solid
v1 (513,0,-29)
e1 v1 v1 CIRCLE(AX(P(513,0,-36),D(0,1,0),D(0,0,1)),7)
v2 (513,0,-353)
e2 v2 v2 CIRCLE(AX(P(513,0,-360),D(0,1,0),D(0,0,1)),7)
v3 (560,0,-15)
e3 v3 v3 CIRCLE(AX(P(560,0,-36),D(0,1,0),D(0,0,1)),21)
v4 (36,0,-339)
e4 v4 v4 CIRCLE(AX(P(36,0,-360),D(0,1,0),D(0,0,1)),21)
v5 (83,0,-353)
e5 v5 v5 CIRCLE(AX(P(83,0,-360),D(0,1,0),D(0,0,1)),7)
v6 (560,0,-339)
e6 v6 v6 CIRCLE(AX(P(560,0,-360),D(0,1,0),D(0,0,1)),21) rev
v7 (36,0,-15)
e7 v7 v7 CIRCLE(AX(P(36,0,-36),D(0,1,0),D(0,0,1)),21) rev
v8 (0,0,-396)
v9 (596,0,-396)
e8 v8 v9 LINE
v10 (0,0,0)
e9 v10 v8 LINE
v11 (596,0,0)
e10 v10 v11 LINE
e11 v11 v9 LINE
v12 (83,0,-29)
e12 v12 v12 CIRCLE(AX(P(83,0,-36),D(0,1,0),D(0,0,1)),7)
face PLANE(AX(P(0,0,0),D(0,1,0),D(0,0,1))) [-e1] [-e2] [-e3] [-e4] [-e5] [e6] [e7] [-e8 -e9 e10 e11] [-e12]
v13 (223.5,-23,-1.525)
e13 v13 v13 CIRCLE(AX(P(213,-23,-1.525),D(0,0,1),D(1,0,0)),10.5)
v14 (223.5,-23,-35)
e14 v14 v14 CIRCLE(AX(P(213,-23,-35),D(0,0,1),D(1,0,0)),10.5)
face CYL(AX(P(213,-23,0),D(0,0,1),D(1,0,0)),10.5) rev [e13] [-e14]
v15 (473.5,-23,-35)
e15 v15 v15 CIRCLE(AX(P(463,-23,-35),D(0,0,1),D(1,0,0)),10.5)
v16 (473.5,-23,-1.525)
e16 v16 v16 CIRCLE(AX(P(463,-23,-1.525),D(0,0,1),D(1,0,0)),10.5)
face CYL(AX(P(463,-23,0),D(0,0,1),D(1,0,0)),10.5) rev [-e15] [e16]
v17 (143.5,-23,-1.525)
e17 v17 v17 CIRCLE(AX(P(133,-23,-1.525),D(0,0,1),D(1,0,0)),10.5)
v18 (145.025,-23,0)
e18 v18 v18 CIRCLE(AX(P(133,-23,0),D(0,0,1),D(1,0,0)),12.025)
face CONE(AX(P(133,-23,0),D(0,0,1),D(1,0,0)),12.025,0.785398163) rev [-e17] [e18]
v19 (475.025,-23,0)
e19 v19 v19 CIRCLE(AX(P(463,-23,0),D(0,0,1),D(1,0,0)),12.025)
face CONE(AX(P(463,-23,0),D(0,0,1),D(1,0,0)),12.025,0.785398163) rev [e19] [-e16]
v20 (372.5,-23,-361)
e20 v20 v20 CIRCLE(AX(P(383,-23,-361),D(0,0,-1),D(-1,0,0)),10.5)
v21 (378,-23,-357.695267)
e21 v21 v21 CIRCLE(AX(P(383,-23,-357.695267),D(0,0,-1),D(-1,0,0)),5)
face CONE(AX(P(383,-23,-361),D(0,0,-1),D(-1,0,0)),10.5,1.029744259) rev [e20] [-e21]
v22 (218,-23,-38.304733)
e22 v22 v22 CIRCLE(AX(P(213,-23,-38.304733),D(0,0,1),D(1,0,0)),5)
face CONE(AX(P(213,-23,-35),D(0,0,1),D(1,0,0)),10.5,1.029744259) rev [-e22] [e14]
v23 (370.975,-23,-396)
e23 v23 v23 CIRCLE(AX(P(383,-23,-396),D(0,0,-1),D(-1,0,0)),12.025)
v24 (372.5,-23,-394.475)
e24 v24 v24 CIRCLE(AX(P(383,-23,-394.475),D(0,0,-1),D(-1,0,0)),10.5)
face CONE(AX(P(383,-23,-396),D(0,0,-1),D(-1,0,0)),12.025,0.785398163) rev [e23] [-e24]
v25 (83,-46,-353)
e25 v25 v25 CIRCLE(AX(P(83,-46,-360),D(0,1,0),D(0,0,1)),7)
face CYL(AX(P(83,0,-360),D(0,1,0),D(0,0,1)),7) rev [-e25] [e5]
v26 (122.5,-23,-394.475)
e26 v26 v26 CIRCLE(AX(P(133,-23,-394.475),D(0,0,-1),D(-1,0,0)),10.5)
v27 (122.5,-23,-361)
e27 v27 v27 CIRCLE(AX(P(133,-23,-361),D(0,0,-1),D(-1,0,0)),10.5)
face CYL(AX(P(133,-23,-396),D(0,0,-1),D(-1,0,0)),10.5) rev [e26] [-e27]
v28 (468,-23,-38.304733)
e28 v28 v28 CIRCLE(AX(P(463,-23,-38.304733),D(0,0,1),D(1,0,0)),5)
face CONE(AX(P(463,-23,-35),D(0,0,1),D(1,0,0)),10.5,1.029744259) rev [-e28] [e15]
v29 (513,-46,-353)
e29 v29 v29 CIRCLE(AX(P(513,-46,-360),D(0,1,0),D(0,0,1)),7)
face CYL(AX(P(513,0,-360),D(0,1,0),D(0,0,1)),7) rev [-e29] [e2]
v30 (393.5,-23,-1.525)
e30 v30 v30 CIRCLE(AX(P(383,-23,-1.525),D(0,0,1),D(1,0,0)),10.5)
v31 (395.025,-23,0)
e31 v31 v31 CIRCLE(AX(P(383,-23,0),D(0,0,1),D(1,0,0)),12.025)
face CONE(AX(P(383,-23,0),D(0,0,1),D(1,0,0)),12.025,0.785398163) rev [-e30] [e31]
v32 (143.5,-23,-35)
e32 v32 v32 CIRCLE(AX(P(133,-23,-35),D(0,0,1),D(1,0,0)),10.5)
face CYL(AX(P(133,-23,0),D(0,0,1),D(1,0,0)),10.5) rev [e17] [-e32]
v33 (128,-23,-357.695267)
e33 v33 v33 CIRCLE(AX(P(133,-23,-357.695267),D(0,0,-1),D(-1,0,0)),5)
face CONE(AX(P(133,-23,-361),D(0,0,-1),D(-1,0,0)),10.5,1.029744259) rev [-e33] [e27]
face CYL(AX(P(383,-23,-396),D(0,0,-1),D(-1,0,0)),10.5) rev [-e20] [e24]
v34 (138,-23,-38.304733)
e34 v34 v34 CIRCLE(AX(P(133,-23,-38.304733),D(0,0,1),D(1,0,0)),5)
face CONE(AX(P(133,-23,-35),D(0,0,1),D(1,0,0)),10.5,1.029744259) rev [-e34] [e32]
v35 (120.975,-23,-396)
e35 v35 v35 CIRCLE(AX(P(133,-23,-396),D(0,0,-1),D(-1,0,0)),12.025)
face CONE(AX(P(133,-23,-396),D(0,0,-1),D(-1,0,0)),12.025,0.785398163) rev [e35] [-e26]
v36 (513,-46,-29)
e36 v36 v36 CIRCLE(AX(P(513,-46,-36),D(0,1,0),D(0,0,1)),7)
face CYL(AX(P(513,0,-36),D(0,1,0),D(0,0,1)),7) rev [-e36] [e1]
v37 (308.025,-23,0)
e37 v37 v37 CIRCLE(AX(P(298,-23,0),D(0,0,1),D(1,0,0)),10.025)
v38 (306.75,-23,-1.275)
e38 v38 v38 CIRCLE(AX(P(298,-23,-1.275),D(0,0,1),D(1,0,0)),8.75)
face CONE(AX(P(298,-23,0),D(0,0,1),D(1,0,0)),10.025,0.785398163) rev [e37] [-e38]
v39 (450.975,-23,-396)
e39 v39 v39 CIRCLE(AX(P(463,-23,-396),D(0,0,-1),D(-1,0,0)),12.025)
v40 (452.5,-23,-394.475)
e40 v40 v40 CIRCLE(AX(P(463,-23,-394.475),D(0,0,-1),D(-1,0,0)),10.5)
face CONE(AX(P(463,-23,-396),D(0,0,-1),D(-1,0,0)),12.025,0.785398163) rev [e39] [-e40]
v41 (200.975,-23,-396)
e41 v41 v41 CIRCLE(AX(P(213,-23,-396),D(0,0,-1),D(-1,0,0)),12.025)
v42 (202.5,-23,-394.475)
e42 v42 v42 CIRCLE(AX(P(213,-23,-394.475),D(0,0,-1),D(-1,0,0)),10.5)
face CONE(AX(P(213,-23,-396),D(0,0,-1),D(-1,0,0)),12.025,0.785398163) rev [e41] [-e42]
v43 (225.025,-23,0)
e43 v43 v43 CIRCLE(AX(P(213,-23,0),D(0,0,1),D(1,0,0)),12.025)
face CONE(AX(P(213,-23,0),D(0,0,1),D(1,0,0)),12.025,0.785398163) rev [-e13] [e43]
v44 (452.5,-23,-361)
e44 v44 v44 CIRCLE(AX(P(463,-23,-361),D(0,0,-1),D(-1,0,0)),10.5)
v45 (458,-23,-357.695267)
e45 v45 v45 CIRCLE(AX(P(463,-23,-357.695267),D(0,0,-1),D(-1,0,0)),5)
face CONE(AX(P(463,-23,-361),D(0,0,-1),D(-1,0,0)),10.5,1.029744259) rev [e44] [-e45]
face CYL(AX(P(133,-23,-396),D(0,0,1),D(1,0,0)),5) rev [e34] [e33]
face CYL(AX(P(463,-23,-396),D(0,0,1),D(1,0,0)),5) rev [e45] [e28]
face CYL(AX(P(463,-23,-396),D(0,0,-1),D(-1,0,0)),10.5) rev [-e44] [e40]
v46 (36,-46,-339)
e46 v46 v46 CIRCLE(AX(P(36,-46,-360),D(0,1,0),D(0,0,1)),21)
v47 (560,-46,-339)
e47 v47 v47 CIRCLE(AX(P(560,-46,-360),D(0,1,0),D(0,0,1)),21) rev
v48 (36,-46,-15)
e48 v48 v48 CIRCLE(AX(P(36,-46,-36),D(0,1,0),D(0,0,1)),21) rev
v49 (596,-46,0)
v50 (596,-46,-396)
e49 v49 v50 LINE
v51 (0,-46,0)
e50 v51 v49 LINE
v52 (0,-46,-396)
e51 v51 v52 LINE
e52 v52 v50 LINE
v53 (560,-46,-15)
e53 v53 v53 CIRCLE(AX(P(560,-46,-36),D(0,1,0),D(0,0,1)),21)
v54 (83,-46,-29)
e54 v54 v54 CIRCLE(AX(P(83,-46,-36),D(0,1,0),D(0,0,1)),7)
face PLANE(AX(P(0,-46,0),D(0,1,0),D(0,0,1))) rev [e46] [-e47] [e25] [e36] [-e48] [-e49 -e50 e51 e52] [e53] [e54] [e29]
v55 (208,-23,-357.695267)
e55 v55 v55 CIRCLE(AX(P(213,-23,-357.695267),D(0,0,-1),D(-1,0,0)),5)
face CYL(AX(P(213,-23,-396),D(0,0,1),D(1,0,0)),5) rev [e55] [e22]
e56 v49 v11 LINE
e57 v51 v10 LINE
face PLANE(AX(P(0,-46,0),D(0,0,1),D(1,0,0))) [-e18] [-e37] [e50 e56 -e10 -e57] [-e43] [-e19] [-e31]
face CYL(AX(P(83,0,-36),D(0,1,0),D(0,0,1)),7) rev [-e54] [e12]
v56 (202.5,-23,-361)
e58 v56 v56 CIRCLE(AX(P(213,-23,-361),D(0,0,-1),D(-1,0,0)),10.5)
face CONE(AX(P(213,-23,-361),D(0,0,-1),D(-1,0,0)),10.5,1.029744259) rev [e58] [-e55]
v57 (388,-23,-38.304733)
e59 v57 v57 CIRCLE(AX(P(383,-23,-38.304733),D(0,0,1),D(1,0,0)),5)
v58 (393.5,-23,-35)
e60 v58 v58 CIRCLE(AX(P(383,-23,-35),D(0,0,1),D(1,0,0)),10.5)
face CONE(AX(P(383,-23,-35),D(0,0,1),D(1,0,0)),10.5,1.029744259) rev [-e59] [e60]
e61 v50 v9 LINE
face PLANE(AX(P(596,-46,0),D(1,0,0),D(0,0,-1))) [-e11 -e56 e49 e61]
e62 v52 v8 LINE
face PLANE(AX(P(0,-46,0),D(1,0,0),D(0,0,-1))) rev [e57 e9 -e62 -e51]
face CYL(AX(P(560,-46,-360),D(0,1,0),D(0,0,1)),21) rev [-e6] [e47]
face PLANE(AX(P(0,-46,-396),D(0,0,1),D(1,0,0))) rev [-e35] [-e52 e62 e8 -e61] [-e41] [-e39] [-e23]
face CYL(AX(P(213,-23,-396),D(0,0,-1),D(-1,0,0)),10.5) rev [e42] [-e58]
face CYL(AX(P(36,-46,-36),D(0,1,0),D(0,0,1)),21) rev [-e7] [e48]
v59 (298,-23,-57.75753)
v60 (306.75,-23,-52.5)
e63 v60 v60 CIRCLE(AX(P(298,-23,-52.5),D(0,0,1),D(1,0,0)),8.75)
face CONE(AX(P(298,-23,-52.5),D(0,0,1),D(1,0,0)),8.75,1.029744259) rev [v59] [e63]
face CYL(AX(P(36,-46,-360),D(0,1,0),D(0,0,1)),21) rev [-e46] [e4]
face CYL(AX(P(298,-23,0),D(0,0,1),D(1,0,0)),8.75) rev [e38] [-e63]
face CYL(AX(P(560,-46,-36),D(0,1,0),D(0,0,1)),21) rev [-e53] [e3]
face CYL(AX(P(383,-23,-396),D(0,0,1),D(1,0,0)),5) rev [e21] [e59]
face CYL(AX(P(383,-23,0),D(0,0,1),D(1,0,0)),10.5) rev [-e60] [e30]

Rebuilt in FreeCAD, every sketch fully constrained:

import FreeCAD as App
import Part
import Sketcher

V = App.Vector
Q = App.Units.Quantity


def add_polygon(sketch, points):
    """Adds a closed chain of lines whose ends are joined by coincident constraints."""
    first, n = sketch.GeometryCount, len(points)
    for a, b in zip(points, points[1:] + points[:1]):
        sketch.addGeometry(Part.LineSegment(App.Vector(*a, 0), App.Vector(*b, 0)), False)
    for i in range(n):
        sketch.addConstraint(Sketcher.Constraint("Coincident", first + i, 2, first + (i + 1) % n, 1))

doc = App.newDocument("Part")
body = doc.addObject("PartDesign::Body", "Body")

# Sketch on XZ plane
sketch1 = body.newObject("Sketcher::SketchObject", "Sketch")
sketch1.AttachmentSupport = (doc.getObject("XZ_Plane"), [""])
sketch1.MapMode = "FlatFace"
add_polygon(sketch1, [(0, -396), (0, 0), (596, 0), (596, -396)])  # lines 0-3
sketch1.addGeometry(Part.Circle(V(36, -36, 0), V(0, 0, 1), 21), False)  # 4
sketch1.addGeometry(Part.Circle(V(560, -36, 0), V(0, 0, 1), 21), False)  # 5
sketch1.addGeometry(Part.Circle(V(36, -360, 0), V(0, 0, 1), 21), False)  # 6
sketch1.addGeometry(Part.Circle(V(560, -360, 0), V(0, 0, 1), 21), False)  # 7
sketch1.addConstraint([
    Sketcher.Constraint("Vertical", 0),
    Sketcher.Constraint("Horizontal", 1),
    Sketcher.Constraint("Vertical", 2),
    Sketcher.Constraint("Horizontal", 3),
    Sketcher.Constraint("Coincident", 0, 2, -1, 1),
    Sketcher.Constraint("Equal", 4, 5),
    Sketcher.Constraint("Equal", 5, 6),
    Sketcher.Constraint("Equal", 6, 7),
    Sketcher.Constraint("Horizontal", 4, 3, 5, 3),
    Sketcher.Constraint("Horizontal", 6, 3, 7, 3),
    Sketcher.Constraint("Vertical", 4, 3, 6, 3),
    Sketcher.Constraint("Vertical", 5, 3, 7, 3),
    Sketcher.Constraint("Diameter", 4, 42.0),
    Sketcher.Constraint("DistanceX", 1, 1, 1, 2, 596.0),
    Sketcher.Constraint("DistanceY", 0, 1, 0, 2, 396.0),
    Sketcher.Constraint("DistanceX", -1, 1, 4, 3, 36.0),
    Sketcher.Constraint("DistanceY", 4, 3, -1, 1, 36.0),
    Sketcher.Constraint("DistanceX", -1, 1, 5, 3, 560.0),
    Sketcher.Constraint("DistanceY", 6, 3, -1, 1, 360.0),
])
pad1 = body.newObject("PartDesign::Pad", "Pad")
pad1.Profile = sketch1
pad1.Length = 46

# Sketch on XZ plane
sketch2 = body.newObject("Sketcher::SketchObject", "Sketch001")
sketch2.AttachmentSupport = (doc.getObject("XZ_Plane"), [""])
sketch2.MapMode = "FlatFace"
sketch2.addGeometry([
    Part.Circle(V(83, -360, 0), V(0, 0, 1), 7),
    Part.Circle(V(513, -360, 0), V(0, 0, 1), 7),
    Part.Circle(V(83, -36, 0), V(0, 0, 1), 7),
    Part.Circle(V(513, -36, 0), V(0, 0, 1), 7),
], False)
sketch2.addConstraint([
    Sketcher.Constraint("Equal", 0, 1),
    Sketcher.Constraint("Equal", 1, 2),
    Sketcher.Constraint("Equal", 2, 3),
    Sketcher.Constraint("Horizontal", 0, 3, 1, 3),
    Sketcher.Constraint("Horizontal", 2, 3, 3, 3),
    Sketcher.Constraint("Vertical", 0, 3, 2, 3),
    Sketcher.Constraint("Vertical", 1, 3, 3, 3),
    Sketcher.Constraint("Diameter", 0, 14.0),
    Sketcher.Constraint("DistanceX", -1, 1, 0, 3, 83.0),
    Sketcher.Constraint("DistanceY", 0, 3, -1, 1, 360.0),
    Sketcher.Constraint("DistanceX", -1, 1, 1, 3, 513.0),
    Sketcher.Constraint("DistanceY", 2, 3, -1, 1, 36.0),
])
doc.recompute()
hole = body.newObject("PartDesign::Hole", "Hole")
hole.Profile = sketch2
hole.ThreadType = "None"
hole.Diameter = 14
hole.DepthType = "ThroughAll"
hole.Reversed = True

# Sketch on XY plane
sketch3 = body.newObject("Sketcher::SketchObject", "Sketch002")
sketch3.AttachmentSupport = (doc.getObject("XY_Plane"), [""])
sketch3.MapMode = "FlatFace"
sketch3.addGeometry([
    Part.Circle(V(133, -23, 0), V(0, 0, 1), 5),
    Part.Circle(V(213, -23, 0), V(0, 0, 1), 5),
    Part.Circle(V(463, -23, 0), V(0, 0, 1), 5),
    Part.Circle(V(383, -23, 0), V(0, 0, 1), 5),
], False)
sketch3.addConstraint([
    Sketcher.Constraint("Equal", 0, 1),
    Sketcher.Constraint("Equal", 1, 2),
    Sketcher.Constraint("Equal", 2, 3),
    Sketcher.Constraint("Horizontal", 0, 3, 1, 3),
    Sketcher.Constraint("Horizontal", 1, 3, 2, 3),
    Sketcher.Constraint("Horizontal", 2, 3, 3, 3),
    Sketcher.Constraint("Diameter", 0, 10.0),
    Sketcher.Constraint("DistanceX", -1, 1, 0, 3, 133.0),
    Sketcher.Constraint("DistanceY", 0, 3, -1, 1, 23.0),
    Sketcher.Constraint("DistanceX", -1, 1, 1, 3, 213.0),
    Sketcher.Constraint("DistanceX", -1, 1, 2, 3, 463.0),
    Sketcher.Constraint("DistanceX", -1, 1, 3, 3, 383.0),
])
pocket1 = body.newObject("PartDesign::Pocket", "Pocket")
pocket1.Profile = sketch3
pocket1.Type = "ThroughAll"

# Sketch on YZ plane
sketch4 = body.newObject("Sketcher::SketchObject", "Sketch003")
sketch4.AttachmentSupport = (doc.getObject("YZ_Plane"), [""])
sketch4.MapMode = "FlatFace"
sketch4.AttachmentOffset = App.Placement(V(0, 0, 213), App.Rotation())
add_polygon(sketch4, [(-23, -41.3), (-23, 0), (-35, 0), (-33.5, -1.5), (-33.5, -35)])  # lines 0-4
sketch4.addGeometry(Part.LineSegment(V(-23, 0, 0), V(-23, -41.3, 0)), True)  # axis
sketch4.addConstraint([
    Sketcher.Constraint("Vertical", 0),
    Sketcher.Constraint("Horizontal", 1),
    Sketcher.Constraint("Vertical", 3),
    Sketcher.Constraint("Vertical", 5),
    Sketcher.Constraint("Coincident", 5, 1, 0, 2),
    Sketcher.Constraint("PointOnObject", 0, 2, -1),
    Sketcher.Constraint("Equal", 0, 5),
    Sketcher.Constraint("Angle", 2, Q("-45 deg")),
    Sketcher.Constraint("Angle", 4, Q("-31 deg")),
    Sketcher.Constraint("DistanceX", 0, 2, -1, 1, 23.0),
    Sketcher.Constraint("DistanceY", 3, 2, -1, 1, 35.0),
    Sketcher.Constraint("DistanceX", 2, 2, -1, 1, 33.5),
    Sketcher.Constraint("DistanceX", 1, 2, 1, 1, 12.025),
])
groove = body.newObject("PartDesign::Groove", "Groove")
groove.Profile = sketch4
groove.ReferenceAxis = (sketch4, ["Axis0"])
groove.Angle = 360
doc.recompute()

linearpattern = body.newObject("PartDesign::LinearPattern", "LinearPattern")
linearpattern.Originals = [groove]
linearpattern.Direction = (doc.getObject("X_Axis"), [""])
linearpattern.Mode = "offset"
linearpattern.Offset = 80
linearpattern.Occurrences = 2
linearpattern.Reversed = True
body.Tip = linearpattern
doc.recompute()

linearpattern2 = body.newObject("PartDesign::LinearPattern", "LinearPattern001")
linearpattern2.Originals = [groove]
linearpattern2.Direction = (doc.getObject("X_Axis"), [""])
linearpattern2.Mode = "offset"
linearpattern2.Offset = 170
linearpattern2.Occurrences = 2
body.Tip = linearpattern2
doc.recompute()

linearpattern3 = body.newObject("PartDesign::LinearPattern", "LinearPattern002")
linearpattern3.Originals = [groove]
linearpattern3.Direction = (doc.getObject("X_Axis"), [""])
linearpattern3.Mode = "offset"
linearpattern3.Offset = 250
linearpattern3.Occurrences = 2
body.Tip = linearpattern3
doc.recompute()

datumplane = body.newObject("PartDesign::Plane", "DatumPlane")
datumplane.AttachmentSupport = (doc.getObject("XY_Plane"), [""])
datumplane.MapMode = "FlatFace"
datumplane.AttachmentOffset = App.Placement(V(0, 0, -198), App.Rotation())
mirrored = body.newObject("PartDesign::Mirrored", "Mirrored")
mirrored.Originals = [groove]
mirrored.MirrorPlane = (datumplane, [""])
body.Tip = mirrored

# Sketch on YZ plane
sketch5 = body.newObject("Sketcher::SketchObject", "Sketch004")
sketch5.AttachmentSupport = (doc.getObject("YZ_Plane"), [""])
sketch5.MapMode = "FlatFace"
sketch5.AttachmentOffset = App.Placement(V(0, 0, 133), App.Rotation())
add_polygon(sketch5, [(-23, -396), (-23, -354.7), (-33.5, -361), (-33.5, -394.5), (-35, -396)])  # lines 0-4
sketch5.addGeometry(Part.LineSegment(V(-23, -354.7, 0), V(-23, -396, 0)), True)  # axis
sketch5.addConstraint([
    Sketcher.Constraint("Vertical", 0),
    Sketcher.Constraint("Vertical", 2),
    Sketcher.Constraint("Horizontal", 4),
    Sketcher.Constraint("Vertical", 5),
    Sketcher.Constraint("Coincident", 5, 1, 0, 2),
    Sketcher.Constraint("Horizontal", 3, 2, 5, 2),
    Sketcher.Constraint("Angle", 1, Q("-149 deg")),
    Sketcher.Constraint("Angle", 3, Q("-135 deg")),
    Sketcher.Constraint("DistanceX", 0, 2, -1, 1, 23.0),
    Sketcher.Constraint("DistanceY", 1, 2, -1, 1, 361.0),
    Sketcher.Constraint("DistanceY", 3, 2, -1, 1, 396.0),
    Sketcher.Constraint("DistanceX", 1, 2, -1, 1, 33.5),
    Sketcher.Constraint("DistanceX", 4, 1, 4, 2, 12.025),
])
groove2 = body.newObject("PartDesign::Groove", "Groove001")
groove2.Profile = sketch5
groove2.ReferenceAxis = (sketch5, ["Axis0"])
groove2.Angle = 360

# Sketch on YZ plane
sketch6 = body.newObject("Sketcher::SketchObject", "Sketch005")
sketch6.AttachmentSupport = (doc.getObject("YZ_Plane"), [""])
sketch6.MapMode = "FlatFace"
sketch6.AttachmentOffset = App.Placement(V(0, 0, 383), App.Rotation())
add_polygon(sketch6, [(-23, -396), (-23, -354.7), (-33.5, -361), (-33.5, -394.5), (-35, -396)])  # lines 0-4
sketch6.addGeometry(Part.LineSegment(V(-23, -354.7, 0), V(-23, -396, 0)), True)  # axis
sketch6.addConstraint([
    Sketcher.Constraint("Vertical", 0),
    Sketcher.Constraint("Vertical", 2),
    Sketcher.Constraint("Horizontal", 4),
    Sketcher.Constraint("Vertical", 5),
    Sketcher.Constraint("Coincident", 5, 1, 0, 2),
    Sketcher.Constraint("Horizontal", 3, 2, 5, 2),
    Sketcher.Constraint("Angle", 1, Q("-149 deg")),
    Sketcher.Constraint("Angle", 3, Q("-135 deg")),
    Sketcher.Constraint("DistanceX", 0, 2, -1, 1, 23.0),
    Sketcher.Constraint("DistanceY", 1, 2, -1, 1, 361.0),
    Sketcher.Constraint("DistanceY", 3, 2, -1, 1, 396.0),
    Sketcher.Constraint("DistanceX", 1, 2, -1, 1, 33.5),
    Sketcher.Constraint("DistanceX", 4, 1, 4, 2, 12.025),
])
groove3 = body.newObject("PartDesign::Groove", "Groove002")
groove3.Profile = sketch6
groove3.ReferenceAxis = (sketch6, ["Axis0"])
groove3.Angle = 360

# Sketch on YZ plane
sketch7 = body.newObject("Sketcher::SketchObject", "Sketch006")
sketch7.AttachmentSupport = (doc.getObject("YZ_Plane"), [""])
sketch7.MapMode = "FlatFace"
sketch7.AttachmentOffset = App.Placement(V(0, 0, 463), App.Rotation())
add_polygon(sketch7, [(-23, -396), (-23, -354.7), (-33.5, -361), (-33.5, -394.5), (-35, -396)])  # lines 0-4
sketch7.addGeometry(Part.LineSegment(V(-23, -354.7, 0), V(-23, -396, 0)), True)  # axis
sketch7.addConstraint([
    Sketcher.Constraint("Vertical", 0),
    Sketcher.Constraint("Vertical", 2),
    Sketcher.Constraint("Horizontal", 4),
    Sketcher.Constraint("Vertical", 5),
    Sketcher.Constraint("Coincident", 5, 1, 0, 2),
    Sketcher.Constraint("Horizontal", 3, 2, 5, 2),
    Sketcher.Constraint("Angle", 1, Q("-149 deg")),
    Sketcher.Constraint("Angle", 3, Q("-135 deg")),
    Sketcher.Constraint("DistanceX", 0, 2, -1, 1, 23.0),
    Sketcher.Constraint("DistanceY", 1, 2, -1, 1, 361.0),
    Sketcher.Constraint("DistanceY", 3, 2, -1, 1, 396.0),
    Sketcher.Constraint("DistanceX", 1, 2, -1, 1, 33.5),
    Sketcher.Constraint("DistanceX", 4, 1, 4, 2, 12.025),
])
groove4 = body.newObject("PartDesign::Groove", "Groove003")
groove4.Profile = sketch7
groove4.ReferenceAxis = (sketch7, ["Axis0"])
groove4.Angle = 360

# Sketch on XY plane
sketch8 = body.newObject("Sketcher::SketchObject", "Sketch007")
sketch8.AttachmentSupport = (doc.getObject("XY_Plane"), [""])
sketch8.MapMode = "FlatFace"
sketch8.addGeometry(Part.Circle(V(298, -23, 0), V(0, 0, 1), 9), False)
sketch8.addConstraint([
    Sketcher.Constraint("Diameter", 0, 17.5),
    Sketcher.Constraint("DistanceX", -1, 1, 0, 3, 298.0),
    Sketcher.Constraint("DistanceY", 0, 3, -1, 1, 23.0),
])
doc.recompute()
hole2 = body.newObject("PartDesign::Hole", "Hole001")
hole2.Profile = sketch8
hole2.ThreadType = "None"
hole2.Diameter = 17.5
hole2.DepthType = "Dimension"
hole2.Depth = 52.5
hole2.DrillPoint = "Angled"
hole2.DrillPointAngle = 118
hole2.HoleCutType = "Countersink"
hole2.HoleCutDiameter = 20.05
hole2.HoleCutCountersinkAngle = 90

doc.recompute()
